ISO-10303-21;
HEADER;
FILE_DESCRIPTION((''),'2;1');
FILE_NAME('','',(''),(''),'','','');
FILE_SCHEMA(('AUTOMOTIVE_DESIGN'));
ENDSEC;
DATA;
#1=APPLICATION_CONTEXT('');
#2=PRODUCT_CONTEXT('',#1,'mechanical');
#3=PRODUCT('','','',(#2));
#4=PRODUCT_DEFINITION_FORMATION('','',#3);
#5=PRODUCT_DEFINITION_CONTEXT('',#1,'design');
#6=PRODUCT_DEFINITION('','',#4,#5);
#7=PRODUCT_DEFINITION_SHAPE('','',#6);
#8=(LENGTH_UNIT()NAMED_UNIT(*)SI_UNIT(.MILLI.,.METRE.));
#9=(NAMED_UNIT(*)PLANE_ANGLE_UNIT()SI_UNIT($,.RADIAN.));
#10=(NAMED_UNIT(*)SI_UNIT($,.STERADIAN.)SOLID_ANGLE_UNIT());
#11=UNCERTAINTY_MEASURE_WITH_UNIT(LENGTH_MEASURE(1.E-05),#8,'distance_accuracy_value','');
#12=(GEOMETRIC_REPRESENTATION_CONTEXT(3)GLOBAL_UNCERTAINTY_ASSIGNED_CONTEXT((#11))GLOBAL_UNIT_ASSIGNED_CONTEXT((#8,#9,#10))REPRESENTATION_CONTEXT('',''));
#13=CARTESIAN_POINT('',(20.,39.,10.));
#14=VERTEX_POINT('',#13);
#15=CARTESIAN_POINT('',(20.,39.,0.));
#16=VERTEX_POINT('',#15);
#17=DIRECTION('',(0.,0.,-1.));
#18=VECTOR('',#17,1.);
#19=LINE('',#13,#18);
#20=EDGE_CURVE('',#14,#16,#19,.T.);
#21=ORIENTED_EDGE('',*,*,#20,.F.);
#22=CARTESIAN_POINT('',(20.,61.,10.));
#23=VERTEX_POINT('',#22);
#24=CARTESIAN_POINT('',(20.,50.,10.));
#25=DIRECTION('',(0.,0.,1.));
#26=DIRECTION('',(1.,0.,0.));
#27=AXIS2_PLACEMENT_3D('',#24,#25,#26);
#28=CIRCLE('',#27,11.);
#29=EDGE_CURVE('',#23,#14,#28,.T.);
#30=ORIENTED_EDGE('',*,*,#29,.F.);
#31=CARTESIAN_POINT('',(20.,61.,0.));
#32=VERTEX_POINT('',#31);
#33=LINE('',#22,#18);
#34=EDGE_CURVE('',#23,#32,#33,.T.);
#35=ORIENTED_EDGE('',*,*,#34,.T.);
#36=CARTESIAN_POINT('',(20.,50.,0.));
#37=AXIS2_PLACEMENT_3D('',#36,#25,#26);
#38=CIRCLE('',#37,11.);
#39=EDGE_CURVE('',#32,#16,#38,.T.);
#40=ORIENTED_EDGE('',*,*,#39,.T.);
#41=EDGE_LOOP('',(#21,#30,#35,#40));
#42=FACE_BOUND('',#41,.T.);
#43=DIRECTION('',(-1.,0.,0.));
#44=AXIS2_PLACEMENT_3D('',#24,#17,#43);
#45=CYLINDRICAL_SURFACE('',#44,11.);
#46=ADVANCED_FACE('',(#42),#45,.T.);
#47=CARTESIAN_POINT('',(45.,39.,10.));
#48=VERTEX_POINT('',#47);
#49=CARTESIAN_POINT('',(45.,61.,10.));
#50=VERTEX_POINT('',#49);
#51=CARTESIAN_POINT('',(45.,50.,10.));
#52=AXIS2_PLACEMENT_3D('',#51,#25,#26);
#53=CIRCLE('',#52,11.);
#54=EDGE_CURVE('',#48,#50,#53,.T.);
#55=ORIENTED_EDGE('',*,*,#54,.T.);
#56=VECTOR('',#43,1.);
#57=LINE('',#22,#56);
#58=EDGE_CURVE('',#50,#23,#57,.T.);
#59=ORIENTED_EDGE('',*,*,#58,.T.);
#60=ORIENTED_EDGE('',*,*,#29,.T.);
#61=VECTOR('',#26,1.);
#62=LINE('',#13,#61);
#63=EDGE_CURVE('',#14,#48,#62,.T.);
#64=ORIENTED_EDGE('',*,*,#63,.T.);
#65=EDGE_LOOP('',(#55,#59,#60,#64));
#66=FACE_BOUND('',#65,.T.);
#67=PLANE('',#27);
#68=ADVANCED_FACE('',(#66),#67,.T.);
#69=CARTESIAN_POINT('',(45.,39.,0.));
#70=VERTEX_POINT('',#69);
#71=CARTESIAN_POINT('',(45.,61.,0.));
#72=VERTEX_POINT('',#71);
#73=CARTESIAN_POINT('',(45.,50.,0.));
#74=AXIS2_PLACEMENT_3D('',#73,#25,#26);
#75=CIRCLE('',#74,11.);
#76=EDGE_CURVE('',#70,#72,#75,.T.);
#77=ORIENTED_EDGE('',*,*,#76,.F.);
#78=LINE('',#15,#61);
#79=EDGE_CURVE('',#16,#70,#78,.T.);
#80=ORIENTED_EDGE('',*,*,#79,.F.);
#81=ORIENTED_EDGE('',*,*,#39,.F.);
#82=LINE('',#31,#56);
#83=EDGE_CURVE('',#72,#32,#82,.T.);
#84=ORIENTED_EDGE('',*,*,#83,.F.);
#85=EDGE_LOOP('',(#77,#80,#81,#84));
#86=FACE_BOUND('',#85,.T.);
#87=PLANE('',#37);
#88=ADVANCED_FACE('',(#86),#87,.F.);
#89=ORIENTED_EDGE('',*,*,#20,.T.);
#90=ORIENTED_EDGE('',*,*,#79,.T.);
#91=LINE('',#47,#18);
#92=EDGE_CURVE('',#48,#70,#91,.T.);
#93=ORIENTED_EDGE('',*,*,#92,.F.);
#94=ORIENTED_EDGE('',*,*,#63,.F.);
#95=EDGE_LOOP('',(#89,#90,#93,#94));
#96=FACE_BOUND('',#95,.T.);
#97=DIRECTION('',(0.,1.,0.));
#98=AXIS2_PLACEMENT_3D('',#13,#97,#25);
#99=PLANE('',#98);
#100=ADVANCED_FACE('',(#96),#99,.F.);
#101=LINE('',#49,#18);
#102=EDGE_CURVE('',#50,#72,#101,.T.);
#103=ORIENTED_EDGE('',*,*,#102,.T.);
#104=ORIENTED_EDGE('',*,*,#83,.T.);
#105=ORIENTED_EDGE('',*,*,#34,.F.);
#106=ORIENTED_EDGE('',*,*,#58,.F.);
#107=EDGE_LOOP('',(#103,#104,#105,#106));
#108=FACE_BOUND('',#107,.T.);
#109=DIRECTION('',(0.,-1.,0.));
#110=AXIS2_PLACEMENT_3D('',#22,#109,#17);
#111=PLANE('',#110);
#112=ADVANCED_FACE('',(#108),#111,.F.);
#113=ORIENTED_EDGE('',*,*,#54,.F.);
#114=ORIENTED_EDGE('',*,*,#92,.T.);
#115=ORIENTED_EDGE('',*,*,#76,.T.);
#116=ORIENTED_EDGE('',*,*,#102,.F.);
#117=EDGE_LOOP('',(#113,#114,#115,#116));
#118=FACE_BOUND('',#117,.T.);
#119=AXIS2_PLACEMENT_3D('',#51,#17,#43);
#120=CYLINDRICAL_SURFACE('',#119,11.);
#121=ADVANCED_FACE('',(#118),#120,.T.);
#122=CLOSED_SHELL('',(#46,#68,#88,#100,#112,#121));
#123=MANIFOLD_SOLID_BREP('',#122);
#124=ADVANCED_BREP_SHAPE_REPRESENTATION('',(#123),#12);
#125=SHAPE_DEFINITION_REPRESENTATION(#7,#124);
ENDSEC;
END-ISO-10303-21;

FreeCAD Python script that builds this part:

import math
import FreeCAD as App
import Part
import Sketcher
from FreeCAD import Vector
Q = App.Units.Quantity

doc = App.newDocument("Part")
params = doc.addObject("Spreadsheet::Sheet", "Params")
for row, (alias, value) in enumerate([
    ("sketch1_radius", "11 mm"),
    ("sketch1_width", "25 mm"),
    ("pad1_length", "10 mm"),
], start=1):
    params.set(f"A{row}", alias)
    params.set(f"B{row}", "=" + value)
    params.setAlias(f"B{row}", alias)

body = doc.addObject("PartDesign::Body", "Body")

# Sketch on XY plane
sketch1 = body.newObject("Sketcher::SketchObject", "Sketch")
sketch1.AttachmentSupport = (doc.getObject("XY_Plane"), [""])
sketch1.MapMode = "FlatFace"
sketch1.addGeometry([
    Part.LineSegment(Vector(45, 61, 0), Vector(20, 61, 0)),
    Part.ArcOfCircle(Part.Circle(Vector(20, 50, 0), Vector(0, 0, 1), 11), math.radians(90), math.radians(270)),
    Part.LineSegment(Vector(20, 39, 0), Vector(45, 39, 0)),
    Part.ArcOfCircle(Part.Circle(Vector(45, 50, 0), Vector(0, 0, 1), 11), math.radians(-90), math.radians(90)),
], False)
sketch1.addConstraint([
    Sketcher.Constraint("Tangent", 0, 2, 1, 1),
    Sketcher.Constraint("Tangent", 1, 2, 2, 1),
    Sketcher.Constraint("Tangent", 2, 2, 3, 1),
    Sketcher.Constraint("Tangent", 3, 2, 0, 1),
    Sketcher.Constraint("Horizontal", 0),
    Sketcher.Constraint("Horizontal", 2),
    Sketcher.Constraint("Radius", 1, Q("11 mm")),
    Sketcher.Constraint("DistanceX", 0, 2, 0, 1, Q("25 mm")),
    Sketcher.Constraint("DistanceX", -1, 1, 1, 3, Q("20 mm")),
    Sketcher.Constraint("DistanceY", -1, 1, 1, 3, Q("50 mm")),
])
sketch1.setExpression("Constraints[6]", "Params.sketch1_radius")
sketch1.setExpression("Constraints[7]", "Params.sketch1_width")
pad1 = body.newObject("PartDesign::Pad", "Pad")
pad1.Profile = sketch1
pad1.setExpression("Length", "Params.pad1_length")

doc.recompute()
